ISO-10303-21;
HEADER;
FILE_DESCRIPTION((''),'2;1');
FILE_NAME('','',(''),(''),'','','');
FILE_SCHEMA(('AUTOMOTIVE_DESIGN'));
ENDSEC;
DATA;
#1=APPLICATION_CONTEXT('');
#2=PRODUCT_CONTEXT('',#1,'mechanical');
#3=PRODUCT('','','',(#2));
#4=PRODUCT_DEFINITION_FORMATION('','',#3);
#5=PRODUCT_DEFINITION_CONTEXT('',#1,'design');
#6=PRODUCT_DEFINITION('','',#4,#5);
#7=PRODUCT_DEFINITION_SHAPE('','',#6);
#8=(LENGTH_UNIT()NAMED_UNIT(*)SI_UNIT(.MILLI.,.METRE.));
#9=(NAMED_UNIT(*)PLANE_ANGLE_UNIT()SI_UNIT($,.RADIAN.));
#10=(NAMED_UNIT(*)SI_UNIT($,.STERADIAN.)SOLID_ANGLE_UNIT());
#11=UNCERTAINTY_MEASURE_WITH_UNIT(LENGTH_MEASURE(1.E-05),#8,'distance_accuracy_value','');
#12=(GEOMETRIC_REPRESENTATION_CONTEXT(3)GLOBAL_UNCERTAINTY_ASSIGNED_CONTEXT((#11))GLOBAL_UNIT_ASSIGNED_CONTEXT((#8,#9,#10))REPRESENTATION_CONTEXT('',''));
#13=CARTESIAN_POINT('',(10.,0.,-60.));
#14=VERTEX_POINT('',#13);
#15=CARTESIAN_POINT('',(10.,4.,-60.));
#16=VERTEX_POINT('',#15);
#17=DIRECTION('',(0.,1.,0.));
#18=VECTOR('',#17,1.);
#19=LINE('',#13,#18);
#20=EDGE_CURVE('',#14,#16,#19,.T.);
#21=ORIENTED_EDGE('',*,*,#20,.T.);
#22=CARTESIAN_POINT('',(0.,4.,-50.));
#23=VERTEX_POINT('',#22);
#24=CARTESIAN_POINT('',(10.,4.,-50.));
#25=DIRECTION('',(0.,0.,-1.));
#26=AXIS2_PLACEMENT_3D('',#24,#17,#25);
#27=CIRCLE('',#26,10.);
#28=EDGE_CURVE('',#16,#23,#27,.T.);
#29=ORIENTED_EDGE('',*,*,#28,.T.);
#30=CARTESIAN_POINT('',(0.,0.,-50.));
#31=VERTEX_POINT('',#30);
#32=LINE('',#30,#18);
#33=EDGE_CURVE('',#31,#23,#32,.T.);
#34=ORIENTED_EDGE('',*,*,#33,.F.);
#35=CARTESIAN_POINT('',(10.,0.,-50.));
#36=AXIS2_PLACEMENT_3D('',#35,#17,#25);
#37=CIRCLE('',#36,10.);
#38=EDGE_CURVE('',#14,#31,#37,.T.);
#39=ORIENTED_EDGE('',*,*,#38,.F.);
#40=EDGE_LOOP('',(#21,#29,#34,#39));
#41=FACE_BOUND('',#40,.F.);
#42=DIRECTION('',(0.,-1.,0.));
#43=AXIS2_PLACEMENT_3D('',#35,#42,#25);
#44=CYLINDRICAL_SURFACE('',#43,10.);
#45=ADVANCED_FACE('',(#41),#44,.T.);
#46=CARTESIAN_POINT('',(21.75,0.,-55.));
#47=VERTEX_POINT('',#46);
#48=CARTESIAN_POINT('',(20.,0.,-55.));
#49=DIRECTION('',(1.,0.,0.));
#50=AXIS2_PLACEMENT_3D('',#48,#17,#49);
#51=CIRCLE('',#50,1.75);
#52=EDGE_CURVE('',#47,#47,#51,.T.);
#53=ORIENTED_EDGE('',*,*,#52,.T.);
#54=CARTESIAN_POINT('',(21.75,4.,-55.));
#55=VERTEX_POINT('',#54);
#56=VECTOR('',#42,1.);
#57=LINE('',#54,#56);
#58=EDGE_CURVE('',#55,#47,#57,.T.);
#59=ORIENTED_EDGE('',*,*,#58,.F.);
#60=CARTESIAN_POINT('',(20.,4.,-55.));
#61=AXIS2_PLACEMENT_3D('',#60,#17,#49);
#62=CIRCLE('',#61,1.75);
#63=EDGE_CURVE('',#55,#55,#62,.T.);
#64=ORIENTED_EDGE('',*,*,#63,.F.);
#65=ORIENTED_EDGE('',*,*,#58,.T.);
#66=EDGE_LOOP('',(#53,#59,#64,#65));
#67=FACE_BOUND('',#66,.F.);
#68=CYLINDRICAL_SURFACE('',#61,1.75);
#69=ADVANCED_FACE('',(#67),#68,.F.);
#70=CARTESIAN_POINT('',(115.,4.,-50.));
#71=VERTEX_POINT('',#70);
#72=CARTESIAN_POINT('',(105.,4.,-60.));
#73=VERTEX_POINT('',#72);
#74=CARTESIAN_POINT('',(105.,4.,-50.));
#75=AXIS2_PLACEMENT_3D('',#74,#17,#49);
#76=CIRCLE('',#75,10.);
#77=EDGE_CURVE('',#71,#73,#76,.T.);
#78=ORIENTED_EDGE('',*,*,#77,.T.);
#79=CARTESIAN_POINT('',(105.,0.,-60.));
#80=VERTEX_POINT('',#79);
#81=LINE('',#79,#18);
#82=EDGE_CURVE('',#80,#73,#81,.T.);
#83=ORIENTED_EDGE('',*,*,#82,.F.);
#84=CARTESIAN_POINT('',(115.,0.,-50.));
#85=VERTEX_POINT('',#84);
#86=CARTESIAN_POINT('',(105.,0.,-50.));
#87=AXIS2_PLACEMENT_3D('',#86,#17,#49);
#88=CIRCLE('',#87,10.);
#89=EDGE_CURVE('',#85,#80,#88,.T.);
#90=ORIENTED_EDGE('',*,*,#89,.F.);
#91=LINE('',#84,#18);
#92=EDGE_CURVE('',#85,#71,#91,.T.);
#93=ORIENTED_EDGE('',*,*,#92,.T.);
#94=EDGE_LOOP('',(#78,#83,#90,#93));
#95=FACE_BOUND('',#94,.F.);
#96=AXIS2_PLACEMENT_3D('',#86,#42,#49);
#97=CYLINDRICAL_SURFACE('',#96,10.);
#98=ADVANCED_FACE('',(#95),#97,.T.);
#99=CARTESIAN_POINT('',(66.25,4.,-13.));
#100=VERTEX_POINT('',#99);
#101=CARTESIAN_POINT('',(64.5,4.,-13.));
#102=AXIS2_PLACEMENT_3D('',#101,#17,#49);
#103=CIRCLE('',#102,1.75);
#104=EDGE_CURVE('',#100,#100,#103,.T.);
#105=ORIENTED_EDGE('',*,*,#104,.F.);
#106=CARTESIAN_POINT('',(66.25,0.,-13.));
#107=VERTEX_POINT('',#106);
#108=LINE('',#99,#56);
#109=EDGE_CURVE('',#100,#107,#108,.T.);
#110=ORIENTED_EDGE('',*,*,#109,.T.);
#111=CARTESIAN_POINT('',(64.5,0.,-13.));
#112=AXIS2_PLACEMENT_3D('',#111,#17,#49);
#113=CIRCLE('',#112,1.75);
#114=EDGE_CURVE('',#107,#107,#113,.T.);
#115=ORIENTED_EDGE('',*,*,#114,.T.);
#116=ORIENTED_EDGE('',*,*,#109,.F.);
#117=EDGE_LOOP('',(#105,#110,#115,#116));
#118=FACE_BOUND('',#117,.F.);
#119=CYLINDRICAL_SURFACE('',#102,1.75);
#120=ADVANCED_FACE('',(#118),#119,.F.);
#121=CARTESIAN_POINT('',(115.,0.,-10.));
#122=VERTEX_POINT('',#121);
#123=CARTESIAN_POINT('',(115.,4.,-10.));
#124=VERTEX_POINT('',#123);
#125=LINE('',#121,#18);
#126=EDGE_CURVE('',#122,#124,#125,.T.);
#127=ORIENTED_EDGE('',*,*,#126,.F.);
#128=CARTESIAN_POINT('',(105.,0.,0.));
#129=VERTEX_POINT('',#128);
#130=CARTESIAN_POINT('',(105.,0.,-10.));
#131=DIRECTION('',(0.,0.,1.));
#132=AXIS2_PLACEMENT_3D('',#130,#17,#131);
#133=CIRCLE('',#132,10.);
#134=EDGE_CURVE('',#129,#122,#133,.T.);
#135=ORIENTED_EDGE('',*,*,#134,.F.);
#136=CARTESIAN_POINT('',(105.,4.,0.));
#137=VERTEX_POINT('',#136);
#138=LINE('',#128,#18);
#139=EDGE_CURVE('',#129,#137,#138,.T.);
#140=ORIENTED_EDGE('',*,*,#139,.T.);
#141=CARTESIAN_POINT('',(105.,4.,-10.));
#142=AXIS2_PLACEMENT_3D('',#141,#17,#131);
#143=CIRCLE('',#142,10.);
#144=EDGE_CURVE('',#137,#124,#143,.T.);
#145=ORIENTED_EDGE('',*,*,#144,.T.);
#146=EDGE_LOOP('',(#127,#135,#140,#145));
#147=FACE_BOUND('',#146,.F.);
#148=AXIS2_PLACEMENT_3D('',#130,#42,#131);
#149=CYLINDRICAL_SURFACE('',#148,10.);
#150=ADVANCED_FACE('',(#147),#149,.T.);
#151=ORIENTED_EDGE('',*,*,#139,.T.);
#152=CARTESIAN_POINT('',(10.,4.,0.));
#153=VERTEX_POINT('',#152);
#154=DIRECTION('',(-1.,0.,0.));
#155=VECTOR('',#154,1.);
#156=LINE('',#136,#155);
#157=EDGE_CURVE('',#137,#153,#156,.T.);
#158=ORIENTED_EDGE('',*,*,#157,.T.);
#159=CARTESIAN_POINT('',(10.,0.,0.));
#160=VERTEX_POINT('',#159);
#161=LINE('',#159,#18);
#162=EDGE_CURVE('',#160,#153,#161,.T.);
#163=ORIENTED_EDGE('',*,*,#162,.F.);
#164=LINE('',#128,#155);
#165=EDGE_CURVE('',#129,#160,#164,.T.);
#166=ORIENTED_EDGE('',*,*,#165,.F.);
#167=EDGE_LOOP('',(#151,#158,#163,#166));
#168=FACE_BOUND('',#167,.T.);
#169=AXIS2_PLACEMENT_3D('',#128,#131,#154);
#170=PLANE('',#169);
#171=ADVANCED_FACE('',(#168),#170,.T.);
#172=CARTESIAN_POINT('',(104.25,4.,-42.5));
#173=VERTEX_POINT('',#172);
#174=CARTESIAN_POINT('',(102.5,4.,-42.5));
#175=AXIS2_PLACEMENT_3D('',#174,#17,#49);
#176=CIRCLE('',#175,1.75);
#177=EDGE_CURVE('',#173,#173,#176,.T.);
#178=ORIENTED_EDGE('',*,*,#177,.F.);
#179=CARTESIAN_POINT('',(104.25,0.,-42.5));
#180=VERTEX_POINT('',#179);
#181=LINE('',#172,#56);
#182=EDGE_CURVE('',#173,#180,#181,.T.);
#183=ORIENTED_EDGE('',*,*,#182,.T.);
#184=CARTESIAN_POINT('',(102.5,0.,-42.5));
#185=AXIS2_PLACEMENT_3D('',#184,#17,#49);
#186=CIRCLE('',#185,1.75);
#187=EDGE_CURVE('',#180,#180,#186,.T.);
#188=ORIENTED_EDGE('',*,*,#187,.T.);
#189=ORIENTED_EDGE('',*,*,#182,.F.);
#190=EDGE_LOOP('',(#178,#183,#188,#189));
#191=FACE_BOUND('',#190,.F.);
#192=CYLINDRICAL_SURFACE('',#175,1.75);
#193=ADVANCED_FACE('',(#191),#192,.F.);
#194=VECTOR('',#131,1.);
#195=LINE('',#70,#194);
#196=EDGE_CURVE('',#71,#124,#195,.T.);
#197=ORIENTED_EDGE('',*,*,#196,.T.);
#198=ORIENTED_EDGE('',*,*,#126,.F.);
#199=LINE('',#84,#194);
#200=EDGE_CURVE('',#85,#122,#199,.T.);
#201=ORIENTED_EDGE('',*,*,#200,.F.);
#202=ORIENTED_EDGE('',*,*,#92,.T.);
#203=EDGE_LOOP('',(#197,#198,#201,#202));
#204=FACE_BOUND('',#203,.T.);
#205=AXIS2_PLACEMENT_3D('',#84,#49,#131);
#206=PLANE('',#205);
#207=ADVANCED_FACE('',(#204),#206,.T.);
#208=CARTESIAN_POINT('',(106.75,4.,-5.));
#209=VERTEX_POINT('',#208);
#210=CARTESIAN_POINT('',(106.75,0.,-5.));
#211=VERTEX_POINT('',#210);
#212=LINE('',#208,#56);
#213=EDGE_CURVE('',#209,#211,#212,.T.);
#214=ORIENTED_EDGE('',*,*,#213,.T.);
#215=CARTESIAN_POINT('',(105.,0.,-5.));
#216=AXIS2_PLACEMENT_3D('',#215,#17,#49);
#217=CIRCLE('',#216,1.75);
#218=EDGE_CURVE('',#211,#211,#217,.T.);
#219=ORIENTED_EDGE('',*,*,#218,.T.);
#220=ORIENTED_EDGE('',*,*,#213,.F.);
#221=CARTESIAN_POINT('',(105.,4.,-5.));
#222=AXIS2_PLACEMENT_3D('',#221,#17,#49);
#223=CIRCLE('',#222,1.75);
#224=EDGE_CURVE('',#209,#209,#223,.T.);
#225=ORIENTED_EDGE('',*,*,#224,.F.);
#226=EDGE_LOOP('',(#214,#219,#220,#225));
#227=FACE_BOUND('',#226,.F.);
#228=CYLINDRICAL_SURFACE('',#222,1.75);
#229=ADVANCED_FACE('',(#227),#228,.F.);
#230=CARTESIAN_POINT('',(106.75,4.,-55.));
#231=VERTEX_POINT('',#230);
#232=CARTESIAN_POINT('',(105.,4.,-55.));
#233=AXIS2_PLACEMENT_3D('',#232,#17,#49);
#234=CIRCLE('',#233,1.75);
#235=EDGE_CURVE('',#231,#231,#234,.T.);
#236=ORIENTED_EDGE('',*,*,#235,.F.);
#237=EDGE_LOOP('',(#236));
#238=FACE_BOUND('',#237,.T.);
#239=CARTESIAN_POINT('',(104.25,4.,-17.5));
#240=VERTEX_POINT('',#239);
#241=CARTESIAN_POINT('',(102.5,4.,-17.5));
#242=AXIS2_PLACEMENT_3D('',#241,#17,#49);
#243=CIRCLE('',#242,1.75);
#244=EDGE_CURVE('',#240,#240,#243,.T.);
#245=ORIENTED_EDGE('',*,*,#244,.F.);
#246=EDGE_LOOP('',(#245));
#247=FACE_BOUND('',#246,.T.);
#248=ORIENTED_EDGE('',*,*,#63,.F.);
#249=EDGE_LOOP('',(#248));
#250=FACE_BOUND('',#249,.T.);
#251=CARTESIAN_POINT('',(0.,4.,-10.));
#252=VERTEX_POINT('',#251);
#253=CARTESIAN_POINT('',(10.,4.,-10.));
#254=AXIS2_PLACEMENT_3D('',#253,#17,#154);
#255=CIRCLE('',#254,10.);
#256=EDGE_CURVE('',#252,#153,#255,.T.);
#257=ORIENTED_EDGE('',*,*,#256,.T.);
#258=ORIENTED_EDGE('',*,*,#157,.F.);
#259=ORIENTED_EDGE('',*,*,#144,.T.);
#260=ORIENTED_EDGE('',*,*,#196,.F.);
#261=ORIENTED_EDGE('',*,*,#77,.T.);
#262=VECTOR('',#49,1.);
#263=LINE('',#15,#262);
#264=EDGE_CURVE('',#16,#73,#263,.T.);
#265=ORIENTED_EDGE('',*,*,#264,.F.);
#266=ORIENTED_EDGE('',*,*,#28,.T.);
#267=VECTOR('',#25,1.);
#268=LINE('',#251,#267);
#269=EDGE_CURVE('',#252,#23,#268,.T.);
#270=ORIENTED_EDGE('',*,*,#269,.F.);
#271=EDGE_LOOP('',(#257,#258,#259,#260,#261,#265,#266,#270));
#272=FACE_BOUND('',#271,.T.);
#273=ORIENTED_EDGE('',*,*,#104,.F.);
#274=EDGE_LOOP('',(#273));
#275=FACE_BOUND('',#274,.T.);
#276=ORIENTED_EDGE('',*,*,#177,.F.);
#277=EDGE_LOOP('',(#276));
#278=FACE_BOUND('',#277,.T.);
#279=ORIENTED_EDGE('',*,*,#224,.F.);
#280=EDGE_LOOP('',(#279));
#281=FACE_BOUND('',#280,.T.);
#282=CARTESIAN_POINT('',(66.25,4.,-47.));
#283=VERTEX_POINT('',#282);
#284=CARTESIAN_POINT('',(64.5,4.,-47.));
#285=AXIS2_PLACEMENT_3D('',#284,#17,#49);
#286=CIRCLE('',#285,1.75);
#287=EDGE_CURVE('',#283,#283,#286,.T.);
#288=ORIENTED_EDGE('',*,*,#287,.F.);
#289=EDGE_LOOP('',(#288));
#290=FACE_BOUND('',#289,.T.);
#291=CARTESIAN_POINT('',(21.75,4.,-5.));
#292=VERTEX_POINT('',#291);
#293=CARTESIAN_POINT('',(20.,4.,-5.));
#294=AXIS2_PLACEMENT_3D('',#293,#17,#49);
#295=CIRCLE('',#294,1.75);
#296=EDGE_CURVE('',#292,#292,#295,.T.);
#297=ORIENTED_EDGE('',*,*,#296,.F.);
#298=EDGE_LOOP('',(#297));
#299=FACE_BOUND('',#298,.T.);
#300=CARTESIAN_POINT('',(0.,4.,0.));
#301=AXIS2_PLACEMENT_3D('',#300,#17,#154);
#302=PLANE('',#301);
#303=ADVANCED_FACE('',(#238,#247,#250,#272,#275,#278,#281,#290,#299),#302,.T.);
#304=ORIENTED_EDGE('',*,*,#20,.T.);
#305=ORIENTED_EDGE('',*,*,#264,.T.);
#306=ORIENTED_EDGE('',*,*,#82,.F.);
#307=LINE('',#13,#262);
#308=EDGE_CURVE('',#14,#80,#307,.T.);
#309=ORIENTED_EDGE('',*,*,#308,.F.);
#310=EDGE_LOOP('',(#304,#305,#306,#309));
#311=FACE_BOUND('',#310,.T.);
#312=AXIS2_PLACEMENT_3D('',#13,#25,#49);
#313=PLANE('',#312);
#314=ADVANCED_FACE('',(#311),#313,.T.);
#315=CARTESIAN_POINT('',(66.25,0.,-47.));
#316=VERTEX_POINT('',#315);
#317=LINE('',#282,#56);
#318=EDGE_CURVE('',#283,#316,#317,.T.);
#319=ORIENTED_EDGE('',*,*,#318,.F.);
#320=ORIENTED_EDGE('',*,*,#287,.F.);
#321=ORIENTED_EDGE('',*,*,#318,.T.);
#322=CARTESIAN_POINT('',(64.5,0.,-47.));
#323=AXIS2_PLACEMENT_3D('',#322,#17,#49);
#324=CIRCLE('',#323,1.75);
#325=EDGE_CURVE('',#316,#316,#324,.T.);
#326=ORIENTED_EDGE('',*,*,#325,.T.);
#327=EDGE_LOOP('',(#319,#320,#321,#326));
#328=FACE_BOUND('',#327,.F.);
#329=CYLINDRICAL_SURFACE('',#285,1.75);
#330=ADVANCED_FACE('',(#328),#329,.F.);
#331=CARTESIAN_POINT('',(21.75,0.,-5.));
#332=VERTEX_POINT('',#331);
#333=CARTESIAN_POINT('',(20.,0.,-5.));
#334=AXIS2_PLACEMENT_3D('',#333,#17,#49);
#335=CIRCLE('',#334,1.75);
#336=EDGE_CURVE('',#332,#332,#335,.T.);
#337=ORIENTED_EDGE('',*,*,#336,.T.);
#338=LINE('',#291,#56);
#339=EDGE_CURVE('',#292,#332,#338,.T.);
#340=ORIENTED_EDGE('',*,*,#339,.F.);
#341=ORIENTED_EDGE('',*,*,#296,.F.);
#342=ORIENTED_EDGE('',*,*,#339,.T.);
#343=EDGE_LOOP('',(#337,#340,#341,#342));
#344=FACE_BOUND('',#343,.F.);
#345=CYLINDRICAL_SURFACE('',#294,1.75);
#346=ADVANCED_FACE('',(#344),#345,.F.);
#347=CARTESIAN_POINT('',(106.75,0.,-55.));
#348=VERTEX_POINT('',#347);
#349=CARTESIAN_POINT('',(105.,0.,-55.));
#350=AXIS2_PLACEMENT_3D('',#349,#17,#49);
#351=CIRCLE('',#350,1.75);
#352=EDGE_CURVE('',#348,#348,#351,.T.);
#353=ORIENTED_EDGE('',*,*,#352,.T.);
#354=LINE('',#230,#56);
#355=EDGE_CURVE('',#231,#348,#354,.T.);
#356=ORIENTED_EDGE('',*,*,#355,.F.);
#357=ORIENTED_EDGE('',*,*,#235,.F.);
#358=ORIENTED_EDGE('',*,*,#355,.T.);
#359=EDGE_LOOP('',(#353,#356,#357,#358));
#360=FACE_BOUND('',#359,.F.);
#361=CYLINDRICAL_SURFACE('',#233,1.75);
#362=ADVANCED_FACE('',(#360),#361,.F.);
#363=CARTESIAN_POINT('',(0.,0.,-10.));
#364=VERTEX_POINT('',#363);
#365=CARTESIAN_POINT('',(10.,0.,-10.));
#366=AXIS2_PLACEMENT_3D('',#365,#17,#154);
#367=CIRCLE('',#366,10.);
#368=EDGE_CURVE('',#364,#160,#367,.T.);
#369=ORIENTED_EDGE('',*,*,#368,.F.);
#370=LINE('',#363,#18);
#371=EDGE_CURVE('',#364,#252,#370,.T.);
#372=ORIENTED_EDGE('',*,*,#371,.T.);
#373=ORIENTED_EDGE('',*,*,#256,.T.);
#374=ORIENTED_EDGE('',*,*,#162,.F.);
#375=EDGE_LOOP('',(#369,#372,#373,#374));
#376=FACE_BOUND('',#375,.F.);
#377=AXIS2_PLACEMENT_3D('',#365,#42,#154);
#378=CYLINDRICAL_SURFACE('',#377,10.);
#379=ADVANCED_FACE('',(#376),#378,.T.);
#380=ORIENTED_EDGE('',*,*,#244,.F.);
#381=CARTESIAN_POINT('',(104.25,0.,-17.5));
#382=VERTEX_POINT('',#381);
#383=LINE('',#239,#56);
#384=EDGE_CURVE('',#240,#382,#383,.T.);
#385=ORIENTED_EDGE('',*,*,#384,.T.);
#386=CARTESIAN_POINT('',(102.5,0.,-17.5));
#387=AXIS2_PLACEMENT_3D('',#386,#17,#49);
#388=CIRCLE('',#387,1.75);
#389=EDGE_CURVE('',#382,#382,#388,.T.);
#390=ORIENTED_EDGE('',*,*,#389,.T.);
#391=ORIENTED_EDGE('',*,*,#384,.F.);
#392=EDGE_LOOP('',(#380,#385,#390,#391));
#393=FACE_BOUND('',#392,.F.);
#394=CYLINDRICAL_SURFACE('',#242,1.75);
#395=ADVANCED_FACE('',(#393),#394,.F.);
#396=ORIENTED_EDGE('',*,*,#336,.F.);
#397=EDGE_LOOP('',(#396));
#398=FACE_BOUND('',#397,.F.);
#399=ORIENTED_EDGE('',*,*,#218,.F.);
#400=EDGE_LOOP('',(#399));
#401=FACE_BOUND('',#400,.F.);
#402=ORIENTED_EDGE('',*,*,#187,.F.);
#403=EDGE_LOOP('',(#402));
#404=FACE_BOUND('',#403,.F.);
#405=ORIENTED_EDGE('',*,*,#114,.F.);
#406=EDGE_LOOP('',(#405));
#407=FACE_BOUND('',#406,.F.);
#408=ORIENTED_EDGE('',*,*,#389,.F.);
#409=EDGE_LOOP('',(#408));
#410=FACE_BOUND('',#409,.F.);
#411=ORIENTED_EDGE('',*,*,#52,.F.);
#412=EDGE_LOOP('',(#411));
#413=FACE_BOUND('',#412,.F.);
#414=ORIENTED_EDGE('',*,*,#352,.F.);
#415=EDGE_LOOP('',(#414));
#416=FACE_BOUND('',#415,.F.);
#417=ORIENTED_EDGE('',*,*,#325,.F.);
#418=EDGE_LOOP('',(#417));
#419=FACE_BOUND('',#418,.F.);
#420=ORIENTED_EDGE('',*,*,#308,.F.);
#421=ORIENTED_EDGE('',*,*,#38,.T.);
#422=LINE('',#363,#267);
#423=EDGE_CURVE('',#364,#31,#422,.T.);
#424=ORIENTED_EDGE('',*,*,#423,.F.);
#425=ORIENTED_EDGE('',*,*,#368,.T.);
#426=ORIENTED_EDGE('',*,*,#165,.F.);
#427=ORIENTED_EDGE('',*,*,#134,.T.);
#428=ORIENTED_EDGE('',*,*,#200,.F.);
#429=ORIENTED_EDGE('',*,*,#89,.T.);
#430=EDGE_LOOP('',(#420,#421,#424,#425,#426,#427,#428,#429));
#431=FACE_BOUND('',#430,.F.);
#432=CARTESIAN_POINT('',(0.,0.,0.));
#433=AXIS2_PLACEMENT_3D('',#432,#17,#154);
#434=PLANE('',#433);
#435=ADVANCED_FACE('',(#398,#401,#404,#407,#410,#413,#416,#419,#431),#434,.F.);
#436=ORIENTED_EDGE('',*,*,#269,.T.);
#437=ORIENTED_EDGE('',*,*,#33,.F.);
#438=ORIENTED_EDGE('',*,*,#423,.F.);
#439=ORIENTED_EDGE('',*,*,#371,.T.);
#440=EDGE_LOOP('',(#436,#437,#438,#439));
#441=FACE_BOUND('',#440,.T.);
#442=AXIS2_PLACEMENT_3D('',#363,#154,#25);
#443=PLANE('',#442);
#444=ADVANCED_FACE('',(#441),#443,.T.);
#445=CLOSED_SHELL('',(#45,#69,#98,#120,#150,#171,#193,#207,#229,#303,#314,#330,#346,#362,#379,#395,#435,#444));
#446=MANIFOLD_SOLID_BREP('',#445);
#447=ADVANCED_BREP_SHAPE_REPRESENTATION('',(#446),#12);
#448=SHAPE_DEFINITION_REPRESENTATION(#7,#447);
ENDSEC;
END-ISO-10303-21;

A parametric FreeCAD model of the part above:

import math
import FreeCAD as App
import Part
import Sketcher
from FreeCAD import Vector
Q = App.Units.Quantity

doc = App.newDocument("Part")
body = doc.addObject("PartDesign::Body", "Body")

# Sketch on XZ plane
sketch1 = doc.addObject("Sketcher::SketchObject", "Sketch")
body.addObject(sketch1)
sketch1.AttachmentSupport = (doc.XZ_Plane, [""])
sketch1.MapMode = "FlatFace"
sketch1.addGeometry([
    Part.LineSegment(Vector(105, -60, 0), Vector(10, -60, 0)),  # 0
    Part.ArcOfCircle(Part.Circle(Vector(10, -50, 0), Vector(0, 0, 1), 10), math.radians(180), math.radians(270)),  # 1
    Part.LineSegment(Vector(0, -50, 0), Vector(0, -10, 0)),  # 2
    Part.ArcOfCircle(Part.Circle(Vector(10, -10, 0), Vector(0, 0, 1), 10), math.radians(90), math.radians(180)),  # 3
    Part.LineSegment(Vector(10, 0, 0), Vector(105, 0, 0)),  # 4
    Part.ArcOfCircle(Part.Circle(Vector(105, -10, 0), Vector(0, 0, 1), 10), math.radians(0), math.radians(90)),  # 5
    Part.LineSegment(Vector(115, -10, 0), Vector(115, -50, 0)),  # 6
    Part.ArcOfCircle(Part.Circle(Vector(105, -50, 0), Vector(0, 0, 1), 10), math.radians(-90), math.radians(0)),  # 7
], False)
sketch1.addConstraint([
    Sketcher.Constraint("Tangent", 0, 2, 1, 2),
    Sketcher.Constraint("Tangent", 1, 1, 2, 1),
    Sketcher.Constraint("Tangent", 2, 2, 3, 2),
    Sketcher.Constraint("Tangent", 3, 1, 4, 1),
    Sketcher.Constraint("Tangent", 4, 2, 5, 2),
    Sketcher.Constraint("Tangent", 5, 1, 6, 1),
    Sketcher.Constraint("Tangent", 6, 2, 7, 2),
    Sketcher.Constraint("Tangent", 7, 1, 0, 1),
    Sketcher.Constraint("Horizontal", 0),
    Sketcher.Constraint("Vertical", 2),
    Sketcher.Constraint("Horizontal", 4),
    Sketcher.Constraint("Vertical", 6),
    Sketcher.Constraint("Equal", 1, 3),
    Sketcher.Constraint("Equal", 3, 5),
    Sketcher.Constraint("Equal", 5, 7),
    Sketcher.Constraint("PointOnObject", 1, 1, -2),
    Sketcher.Constraint("PointOnObject", 3, 1, -1),
    Sketcher.Constraint("Radius", 1, Q("10 mm")),
    Sketcher.Constraint("DistanceY", 0, 2, -1, 1, Q("60 mm")),
    Sketcher.Constraint("DistanceX", -1, 1, 5, 1, Q("115 mm")),
])
pad1 = doc.addObject("PartDesign::Pad", "Pad")
body.addObject(pad1)
pad1.Profile = sketch1
pad1.Length = 4
pad1.Reversed = True

# Sketch on XZ plane
sketch2 = doc.addObject("Sketcher::SketchObject", "Sketch001")
body.addObject(sketch2)
sketch2.AttachmentSupport = (doc.XZ_Plane, [""])
sketch2.MapMode = "FlatFace"
sketch2.AttachmentOffset = App.Placement(Vector(0, 0, -4), App.Rotation())
sketch2.addGeometry([
    Part.Circle(Vector(20, -55, 0), Vector(0, 0, 1), 1.8),  # 0
    Part.Circle(Vector(105, -55, 0), Vector(0, 0, 1), 1.8),  # 1
    Part.Circle(Vector(20, -5, 0), Vector(0, 0, 1), 1.8),  # 2
    Part.Circle(Vector(105, -5, 0), Vector(0, 0, 1), 1.8),  # 3
    Part.Circle(Vector(102.5, -42.5, 0), Vector(0, 0, 1), 1.8),  # 4
    Part.Circle(Vector(102.5, -17.5, 0), Vector(0, 0, 1), 1.8),  # 5
    Part.Circle(Vector(64.5, -47, 0), Vector(0, 0, 1), 1.8),  # 6
    Part.Circle(Vector(64.5, -13, 0), Vector(0, 0, 1), 1.8),  # 7
], False)
sketch2.addConstraint([
    Sketcher.Constraint("Equal", 0, 1),
    Sketcher.Constraint("Equal", 1, 2),
    Sketcher.Constraint("Equal", 2, 3),
    Sketcher.Constraint("Equal", 3, 4),
    Sketcher.Constraint("Equal", 4, 5),
    Sketcher.Constraint("Equal", 5, 6),
    Sketcher.Constraint("Equal", 6, 7),
    Sketcher.Constraint("Horizontal", 0, 3, 1, 3),
    Sketcher.Constraint("Horizontal", 2, 3, 3, 3),
    Sketcher.Constraint("Vertical", 0, 3, 2, 3),
    Sketcher.Constraint("Vertical", 1, 3, 3, 3),
    Sketcher.Constraint("Vertical", 4, 3, 5, 3),
    Sketcher.Constraint("Vertical", 6, 3, 7, 3),
    Sketcher.Constraint("Diameter", 0, Q("3.5 mm")),
    Sketcher.Constraint("DistanceX", -1, 1, 0, 3, Q("20 mm")),
    Sketcher.Constraint("DistanceY", 2, 3, -1, 1, Q("5 mm")),
    Sketcher.Constraint("DistanceY", 7, 3, -1, 1, Q("13 mm")),
    Sketcher.Constraint("DistanceX", 0, 3, 1, 3, Q("85 mm")),
    Sketcher.Constraint("DistanceY", 0, 3, 2, 3, Q("50 mm")),
    Sketcher.Constraint("DistanceY", 4, 3, 5, 3, Q("25 mm")),
    Sketcher.Constraint("DistanceX", 6, 3, 4, 3, Q("38 mm")),
    Sketcher.Constraint("DistanceY", 6, 3, 7, 3, Q("34 mm")),
    Sketcher.Constraint("DistanceY", 5, 3, -1, 1, Q("17.5 mm")),
    Sketcher.Constraint("DistanceX", -1, 1, 4, 3, Q("102.5 mm")),
])
pocket1 = doc.addObject("PartDesign::Pocket", "Pocket")
body.addObject(pocket1)
pocket1.Profile = sketch2
pocket1.Type = "ThroughAll"
pocket1.Reversed = True

doc.recompute()
